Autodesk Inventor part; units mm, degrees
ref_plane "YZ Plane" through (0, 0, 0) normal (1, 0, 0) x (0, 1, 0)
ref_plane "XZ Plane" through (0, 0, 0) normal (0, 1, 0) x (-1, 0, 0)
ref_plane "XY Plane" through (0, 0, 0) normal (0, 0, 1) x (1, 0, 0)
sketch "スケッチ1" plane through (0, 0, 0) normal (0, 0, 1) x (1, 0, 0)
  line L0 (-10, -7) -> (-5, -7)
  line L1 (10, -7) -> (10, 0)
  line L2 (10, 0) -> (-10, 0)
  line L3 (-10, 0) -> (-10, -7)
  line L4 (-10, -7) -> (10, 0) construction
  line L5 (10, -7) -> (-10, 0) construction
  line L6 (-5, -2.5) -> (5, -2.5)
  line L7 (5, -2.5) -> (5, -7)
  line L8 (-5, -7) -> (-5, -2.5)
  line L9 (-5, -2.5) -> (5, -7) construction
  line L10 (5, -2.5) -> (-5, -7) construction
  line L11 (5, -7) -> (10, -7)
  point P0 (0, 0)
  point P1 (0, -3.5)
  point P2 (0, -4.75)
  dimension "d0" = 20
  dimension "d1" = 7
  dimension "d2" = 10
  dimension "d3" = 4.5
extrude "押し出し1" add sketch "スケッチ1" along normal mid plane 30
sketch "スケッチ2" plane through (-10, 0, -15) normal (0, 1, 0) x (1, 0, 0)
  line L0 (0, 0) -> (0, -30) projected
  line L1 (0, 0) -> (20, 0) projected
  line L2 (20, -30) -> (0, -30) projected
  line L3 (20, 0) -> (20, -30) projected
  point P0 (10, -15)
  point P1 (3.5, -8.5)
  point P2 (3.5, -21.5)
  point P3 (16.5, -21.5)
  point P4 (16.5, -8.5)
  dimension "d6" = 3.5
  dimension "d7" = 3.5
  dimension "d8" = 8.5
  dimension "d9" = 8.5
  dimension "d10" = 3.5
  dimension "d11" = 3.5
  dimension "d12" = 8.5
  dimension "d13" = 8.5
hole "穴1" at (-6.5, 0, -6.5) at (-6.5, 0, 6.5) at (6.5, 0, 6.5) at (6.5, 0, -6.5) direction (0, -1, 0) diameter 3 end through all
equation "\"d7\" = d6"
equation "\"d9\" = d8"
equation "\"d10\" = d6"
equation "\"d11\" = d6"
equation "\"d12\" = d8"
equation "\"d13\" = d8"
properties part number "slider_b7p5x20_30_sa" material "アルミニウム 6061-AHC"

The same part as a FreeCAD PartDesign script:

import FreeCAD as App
import Part
import Sketcher
Q = App.Units.Quantity

doc = App.newDocument("Part")
params = doc.addObject("Spreadsheet::Sheet", "Params")
for row, (alias, value) in enumerate([
    ("sketch1_width", "10 mm"),
    ("sketch1_width2", "20 mm"),
    ("sketch1_height", "7 mm"),
    ("sketch1_height2", "4.5 mm"),
    ("pad1_length", "30 mm"),
    ("sketch2_diameter", "3 mm"),
    ("hole_diameter", "3 mm"),
], start=1):
    params.set(f"A{row}", alias)
    params.set(f"B{row}", "=" + value)
    params.setAlias(f"B{row}", alias)

body = doc.addObject("PartDesign::Body", "Body")

sketch1 = body.newObject("Sketcher::SketchObject", "Sketch")
sketch1.AttachmentSupport = (doc.getObject("XY_Plane"), [""])
sketch1.MapMode = "FlatFace"
sketch1.addGeometry([
    Part.LineSegment(App.Vector(-10, 0, 0), App.Vector(-10, -7, 0)),
    Part.LineSegment(App.Vector(-10, -7, 0), App.Vector(-5, -7, 0)),
    Part.LineSegment(App.Vector(-5, -7, 0), App.Vector(-5, -2.5, 0)),
    Part.LineSegment(App.Vector(-5, -2.5, 0), App.Vector(5, -2.5, 0)),
    Part.LineSegment(App.Vector(5, -2.5, 0), App.Vector(5, -7, 0)),
    Part.LineSegment(App.Vector(5, -7, 0), App.Vector(10, -7, 0)),
    Part.LineSegment(App.Vector(10, -7, 0), App.Vector(10, 0, 0)),
    Part.LineSegment(App.Vector(10, 0, 0), App.Vector(-10, 0, 0)),
], False)
sketch1.addConstraint([
    Sketcher.Constraint("Coincident", 0, 2, 1, 1),
    Sketcher.Constraint("Coincident", 1, 2, 2, 1),
    Sketcher.Constraint("Coincident", 2, 2, 3, 1),
    Sketcher.Constraint("Coincident", 3, 2, 4, 1),
    Sketcher.Constraint("Coincident", 4, 2, 5, 1),
    Sketcher.Constraint("Coincident", 5, 2, 6, 1),
    Sketcher.Constraint("Coincident", 6, 2, 7, 1),
    Sketcher.Constraint("Coincident", 7, 2, 0, 1),
    Sketcher.Constraint("Vertical", 0),
    Sketcher.Constraint("Horizontal", 1),
    Sketcher.Constraint("Vertical", 2),
    Sketcher.Constraint("Horizontal", 3),
    Sketcher.Constraint("Vertical", 4),
    Sketcher.Constraint("Horizontal", 5),
    Sketcher.Constraint("Vertical", 6),
    Sketcher.Constraint("Horizontal", 7),
    Sketcher.Constraint("Symmetric", 6, 2, 7, 2, -1, 1),
    Sketcher.Constraint("Symmetric", 1, 2, 4, 2, -2),
    Sketcher.Constraint("DistanceX", 3, 1, 3, 2, Q("10 mm")),
    Sketcher.Constraint("DistanceX", 7, 2, 7, 1, Q("20 mm")),
    Sketcher.Constraint("DistanceY", 0, 2, 0, 1, Q("7 mm")),
    Sketcher.Constraint("DistanceY", 2, 1, 2, 2, Q("4.5 mm")),
])
sketch1.setExpression("Constraints[18]", "Params.sketch1_width")
sketch1.setExpression("Constraints[19]", "Params.sketch1_width2")
sketch1.setExpression("Constraints[20]", "Params.sketch1_height")
sketch1.setExpression("Constraints[21]", "Params.sketch1_height2")
pad1 = body.newObject("PartDesign::Pad", "Pad")
pad1.Profile = sketch1
pad1.setExpression("Length", "Params.pad1_length")
pad1.Midplane = True

sketch2 = body.newObject("Sketcher::SketchObject", "Sketch001")
sketch2.AttachmentSupport = (doc.getObject("XZ_Plane"), [""])
sketch2.MapMode = "FlatFace"
sketch2.addGeometry([
    Part.Circle(App.Vector(-6.5, -6.5, 0), App.Vector(0, 0, 1), 1.5),
    Part.Circle(App.Vector(-6.5, 6.5, 0), App.Vector(0, 0, 1), 1.5),
    Part.Circle(App.Vector(6.5, 6.5, 0), App.Vector(0, 0, 1), 1.5),
    Part.Circle(App.Vector(6.5, -6.5, 0), App.Vector(0, 0, 1), 1.5),
], False)
sketch2.addConstraint([
    Sketcher.Constraint("Equal", 0, 1),
    Sketcher.Constraint("Equal", 1, 2),
    Sketcher.Constraint("Equal", 2, 3),
    Sketcher.Constraint("Symmetric", 0, 3, 2, 3, -1, 1),
    Sketcher.Constraint("Symmetric", 1, 3, 3, 3, -1, 1),
    Sketcher.Constraint("Symmetric", 1, 3, 2, 3, -2),
    Sketcher.Constraint("Diameter", 0, Q("3 mm")),
    Sketcher.Constraint("DistanceY", 0, 3, 1, 3, Q("13 mm")),
    Sketcher.Constraint("DistanceX", 1, 3, 2, 3, Q("13 mm")),
])
sketch2.setExpression("Constraints[6]", "Params.sketch2_diameter")
doc.recompute()
hole = body.newObject("PartDesign::Hole", "Hole")
hole.Profile = sketch2
hole.ThreadType = "None"
hole.setExpression("Diameter", "Params.hole_diameter")
hole.DepthType = "ThroughAll"
hole.Reversed = True

doc.recompute()
